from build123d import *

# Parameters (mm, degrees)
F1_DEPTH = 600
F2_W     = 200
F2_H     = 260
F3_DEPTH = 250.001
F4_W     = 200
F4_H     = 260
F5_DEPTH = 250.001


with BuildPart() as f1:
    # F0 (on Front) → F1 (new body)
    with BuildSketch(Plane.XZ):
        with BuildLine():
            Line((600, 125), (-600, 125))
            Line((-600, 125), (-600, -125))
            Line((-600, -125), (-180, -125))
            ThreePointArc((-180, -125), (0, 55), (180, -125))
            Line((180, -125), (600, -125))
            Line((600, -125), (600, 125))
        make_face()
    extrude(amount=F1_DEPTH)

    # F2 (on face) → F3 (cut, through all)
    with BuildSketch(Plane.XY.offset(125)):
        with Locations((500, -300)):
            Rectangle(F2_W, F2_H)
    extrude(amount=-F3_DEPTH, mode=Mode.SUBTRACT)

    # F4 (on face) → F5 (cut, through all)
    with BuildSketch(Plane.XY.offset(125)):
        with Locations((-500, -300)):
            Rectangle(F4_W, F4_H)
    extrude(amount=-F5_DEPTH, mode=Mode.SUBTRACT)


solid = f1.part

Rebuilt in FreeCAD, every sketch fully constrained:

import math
import FreeCAD as App
import Part
import Sketcher
from FreeCAD import Vector


def add_polygon(sketch, points):
    """Adds a closed chain of lines whose ends are joined by coincident constraints."""
    first, n = sketch.GeometryCount, len(points)
    for a, b in zip(points, points[1:] + points[:1]):
        sketch.addGeometry(Part.LineSegment(App.Vector(*a, 0), App.Vector(*b, 0)), False)
    for i in range(n):
        sketch.addConstraint(Sketcher.Constraint("Coincident", first + i, 2, first + (i + 1) % n, 1))

doc = App.newDocument("Part")
body = doc.addObject("PartDesign::Body", "Body")

sketch1 = body.newObject("Sketcher::SketchObject", "Sketch")
sketch1.AttachmentSupport = (doc.getObject("XZ_Plane"), [""])
sketch1.MapMode = "FlatFace"
sketch1.addGeometry([
    Part.LineSegment(Vector(600, 125, 0), Vector(-600, 125, 0)),
    Part.LineSegment(Vector(-600, 125, 0), Vector(-600, -125, 0)),
    Part.LineSegment(Vector(-600, -125, 0), Vector(-180, -125, 0)),
    Part.ArcOfCircle(Part.Circle(Vector(0, -125, 0), Vector(0, 0, 1), 180), math.radians(0), math.radians(180)),
    Part.LineSegment(Vector(180, -125, 0), Vector(600, -125, 0)),
    Part.LineSegment(Vector(600, -125, 0), Vector(600, 125, 0)),
], False)
sketch1.addConstraint([
    Sketcher.Constraint("Coincident", 0, 2, 1, 1),
    Sketcher.Constraint("Coincident", 1, 2, 2, 1),
    Sketcher.Constraint("Coincident", 2, 2, 3, 2),
    Sketcher.Constraint("Coincident", 3, 1, 4, 1),
    Sketcher.Constraint("Coincident", 4, 2, 5, 1),
    Sketcher.Constraint("Coincident", 5, 2, 0, 1),
    Sketcher.Constraint("Horizontal", 0),
    Sketcher.Constraint("Vertical", 1),
    Sketcher.Constraint("Horizontal", 2),
    Sketcher.Constraint("Horizontal", 4),
    Sketcher.Constraint("Vertical", 5),
    Sketcher.Constraint("Symmetric", 0, 2, 4, 2, -1, 1),
    Sketcher.Constraint("Symmetric", 2, 2, 3, 1, -2),
    Sketcher.Constraint("Horizontal", 3, 3, 1, 2),
    Sketcher.Constraint("Radius", 3, 180.0),
    Sketcher.Constraint("DistanceX", 0, 2, 0, 1, 1200.0),
    Sketcher.Constraint("DistanceY", 1, 2, 1, 1, 250.0),
])
pad1 = body.newObject("PartDesign::Pad", "Pad")
pad1.Profile = sketch1
pad1.Length = 600

sketch2 = body.newObject("Sketcher::SketchObject", "Sketch001")
sketch2.AttachmentSupport = (doc.getObject("XY_Plane"), [""])
sketch2.MapMode = "FlatFace"
sketch2.AttachmentOffset = App.Placement(Vector(0, 0, 125), App.Rotation())
add_polygon(sketch2, [(400, -170), (400, -430), (600, -430), (600, -170)])
sketch2.addConstraint([
    Sketcher.Constraint("Vertical", 0),
    Sketcher.Constraint("Horizontal", 1),
    Sketcher.Constraint("Vertical", 2),
    Sketcher.Constraint("Horizontal", 3),
    Sketcher.Constraint("DistanceX", 1, 1, 1, 2, 200.0),
    Sketcher.Constraint("DistanceY", 0, 2, 0, 1, 260.0),
    Sketcher.Constraint("DistanceX", -1, 1, 0, 2, 400.0),
    Sketcher.Constraint("DistanceY", 0, 2, -1, 1, 430.0),
])
pocket1 = body.newObject("PartDesign::Pocket", "Pocket")
pocket1.Profile = sketch2
pocket1.Type = "ThroughAll"

sketch3 = body.newObject("Sketcher::SketchObject", "Sketch002")
sketch3.AttachmentSupport = (doc.getObject("XY_Plane"), [""])
sketch3.MapMode = "FlatFace"
sketch3.AttachmentOffset = App.Placement(Vector(0, 0, 125), App.Rotation())
add_polygon(sketch3, [(-600, -170), (-600, -430), (-400, -430), (-400, -170)])
sketch3.addConstraint([
    Sketcher.Constraint("Vertical", 0),
    Sketcher.Constraint("Horizontal", 1),
    Sketcher.Constraint("Vertical", 2),
    Sketcher.Constraint("Horizontal", 3),
    Sketcher.Constraint("DistanceX", 1, 1, 1, 2, 200.0),
    Sketcher.Constraint("DistanceY", 0, 2, 0, 1, 260.0),
    Sketcher.Constraint("DistanceX", 0, 2, -1, 1, 600.0),
    Sketcher.Constraint("DistanceY", 0, 2, -1, 1, 430.0),
])
pocket2 = body.newObject("PartDesign::Pocket", "Pocket001")
pocket2.Profile = sketch3
pocket2.Type = "ThroughAll"

doc.recompute()
